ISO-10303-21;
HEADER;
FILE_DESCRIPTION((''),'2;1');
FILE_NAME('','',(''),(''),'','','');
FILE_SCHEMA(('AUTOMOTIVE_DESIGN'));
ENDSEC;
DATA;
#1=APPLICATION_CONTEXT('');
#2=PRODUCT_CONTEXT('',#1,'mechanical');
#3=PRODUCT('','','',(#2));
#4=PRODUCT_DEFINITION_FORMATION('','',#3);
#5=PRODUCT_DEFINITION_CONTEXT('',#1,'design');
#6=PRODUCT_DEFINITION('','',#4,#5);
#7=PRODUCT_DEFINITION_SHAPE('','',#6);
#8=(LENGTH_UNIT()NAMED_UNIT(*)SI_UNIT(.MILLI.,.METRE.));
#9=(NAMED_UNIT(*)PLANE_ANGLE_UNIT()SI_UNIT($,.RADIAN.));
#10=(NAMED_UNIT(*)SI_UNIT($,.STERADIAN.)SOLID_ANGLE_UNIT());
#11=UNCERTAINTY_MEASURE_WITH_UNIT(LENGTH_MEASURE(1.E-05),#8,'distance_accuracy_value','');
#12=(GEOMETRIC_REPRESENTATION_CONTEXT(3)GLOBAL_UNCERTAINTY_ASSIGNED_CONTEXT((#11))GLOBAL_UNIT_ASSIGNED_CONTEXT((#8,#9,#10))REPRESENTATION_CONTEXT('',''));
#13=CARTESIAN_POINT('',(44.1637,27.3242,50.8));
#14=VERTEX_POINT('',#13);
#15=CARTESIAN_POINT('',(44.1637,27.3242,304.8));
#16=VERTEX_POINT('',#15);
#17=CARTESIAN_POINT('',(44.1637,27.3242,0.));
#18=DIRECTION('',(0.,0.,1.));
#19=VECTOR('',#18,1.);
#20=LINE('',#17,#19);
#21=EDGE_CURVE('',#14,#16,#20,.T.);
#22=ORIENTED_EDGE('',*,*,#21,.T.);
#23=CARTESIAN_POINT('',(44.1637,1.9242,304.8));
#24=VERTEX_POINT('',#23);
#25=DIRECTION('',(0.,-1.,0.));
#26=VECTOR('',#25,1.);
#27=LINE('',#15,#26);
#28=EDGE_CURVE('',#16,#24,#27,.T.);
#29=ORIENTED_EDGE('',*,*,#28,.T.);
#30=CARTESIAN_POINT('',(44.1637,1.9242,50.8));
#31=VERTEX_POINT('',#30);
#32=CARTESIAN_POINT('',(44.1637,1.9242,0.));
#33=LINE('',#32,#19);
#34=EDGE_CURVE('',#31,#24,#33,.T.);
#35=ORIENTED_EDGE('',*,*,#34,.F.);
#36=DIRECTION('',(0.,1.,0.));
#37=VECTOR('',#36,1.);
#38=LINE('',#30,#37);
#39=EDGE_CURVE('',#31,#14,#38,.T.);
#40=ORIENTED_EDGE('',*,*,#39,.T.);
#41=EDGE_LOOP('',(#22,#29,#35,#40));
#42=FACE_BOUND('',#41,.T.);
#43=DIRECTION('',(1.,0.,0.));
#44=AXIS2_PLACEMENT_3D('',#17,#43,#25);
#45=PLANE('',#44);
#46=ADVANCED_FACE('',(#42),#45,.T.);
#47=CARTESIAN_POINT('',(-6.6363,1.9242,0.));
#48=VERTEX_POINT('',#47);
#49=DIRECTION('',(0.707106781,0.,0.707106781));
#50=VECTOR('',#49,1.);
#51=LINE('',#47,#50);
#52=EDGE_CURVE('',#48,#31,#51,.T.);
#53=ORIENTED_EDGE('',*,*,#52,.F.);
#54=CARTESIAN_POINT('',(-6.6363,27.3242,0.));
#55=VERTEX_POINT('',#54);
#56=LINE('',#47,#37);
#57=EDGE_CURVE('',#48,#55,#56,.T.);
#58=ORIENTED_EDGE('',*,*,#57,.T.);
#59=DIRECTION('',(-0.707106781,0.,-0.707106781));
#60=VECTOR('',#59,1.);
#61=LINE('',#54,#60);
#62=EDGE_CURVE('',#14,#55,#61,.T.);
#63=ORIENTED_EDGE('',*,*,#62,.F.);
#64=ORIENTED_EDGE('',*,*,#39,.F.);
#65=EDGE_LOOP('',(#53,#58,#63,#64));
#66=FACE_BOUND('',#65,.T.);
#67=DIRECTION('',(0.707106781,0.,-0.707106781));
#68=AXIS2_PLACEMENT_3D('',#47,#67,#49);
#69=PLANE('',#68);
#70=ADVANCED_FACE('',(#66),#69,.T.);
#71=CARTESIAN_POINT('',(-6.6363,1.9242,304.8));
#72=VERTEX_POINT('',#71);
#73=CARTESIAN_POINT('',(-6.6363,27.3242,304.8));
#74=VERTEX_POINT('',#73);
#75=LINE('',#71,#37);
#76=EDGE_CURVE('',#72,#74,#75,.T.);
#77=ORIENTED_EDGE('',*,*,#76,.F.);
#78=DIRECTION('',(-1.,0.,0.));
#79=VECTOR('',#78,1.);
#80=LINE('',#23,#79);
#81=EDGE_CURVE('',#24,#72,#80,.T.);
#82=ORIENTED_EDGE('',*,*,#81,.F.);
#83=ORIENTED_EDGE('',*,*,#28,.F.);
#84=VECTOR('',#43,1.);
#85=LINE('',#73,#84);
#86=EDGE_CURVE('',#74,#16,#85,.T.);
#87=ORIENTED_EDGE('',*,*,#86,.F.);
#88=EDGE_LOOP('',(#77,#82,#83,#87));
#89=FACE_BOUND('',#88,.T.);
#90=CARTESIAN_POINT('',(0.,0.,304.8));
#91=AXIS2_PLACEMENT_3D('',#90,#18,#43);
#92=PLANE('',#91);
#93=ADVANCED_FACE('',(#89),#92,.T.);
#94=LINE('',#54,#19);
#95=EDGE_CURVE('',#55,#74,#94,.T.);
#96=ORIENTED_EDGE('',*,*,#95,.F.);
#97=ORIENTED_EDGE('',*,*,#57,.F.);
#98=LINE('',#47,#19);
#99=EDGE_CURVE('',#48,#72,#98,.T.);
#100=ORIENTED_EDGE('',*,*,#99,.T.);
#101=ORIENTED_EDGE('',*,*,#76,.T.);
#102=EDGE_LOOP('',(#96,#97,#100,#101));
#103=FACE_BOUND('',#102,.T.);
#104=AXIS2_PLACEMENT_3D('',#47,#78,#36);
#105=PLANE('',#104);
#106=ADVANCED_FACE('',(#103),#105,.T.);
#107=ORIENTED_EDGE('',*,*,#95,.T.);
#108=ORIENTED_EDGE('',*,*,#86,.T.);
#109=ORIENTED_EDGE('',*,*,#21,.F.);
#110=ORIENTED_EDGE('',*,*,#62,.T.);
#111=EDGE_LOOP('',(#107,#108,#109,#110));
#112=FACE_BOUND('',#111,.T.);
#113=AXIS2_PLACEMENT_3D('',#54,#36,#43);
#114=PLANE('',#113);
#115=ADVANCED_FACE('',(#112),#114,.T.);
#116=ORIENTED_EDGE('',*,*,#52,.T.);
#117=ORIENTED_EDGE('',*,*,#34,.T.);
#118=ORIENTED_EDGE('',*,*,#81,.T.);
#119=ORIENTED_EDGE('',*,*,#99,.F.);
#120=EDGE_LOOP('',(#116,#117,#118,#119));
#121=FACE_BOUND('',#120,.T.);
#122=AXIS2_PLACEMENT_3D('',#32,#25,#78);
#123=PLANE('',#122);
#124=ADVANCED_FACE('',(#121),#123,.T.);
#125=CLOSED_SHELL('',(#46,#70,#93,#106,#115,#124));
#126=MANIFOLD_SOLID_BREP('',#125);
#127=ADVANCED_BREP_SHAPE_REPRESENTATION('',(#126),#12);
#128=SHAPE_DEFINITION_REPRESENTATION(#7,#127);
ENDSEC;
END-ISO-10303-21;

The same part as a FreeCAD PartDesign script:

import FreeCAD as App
import Part
import Sketcher

V = App.Vector
Q = App.Units.Quantity


def add_polygon(sketch, points):
    """Adds a closed chain of lines whose ends are joined by coincident constraints."""
    first, n = sketch.GeometryCount, len(points)
    for a, b in zip(points, points[1:] + points[:1]):
        sketch.addGeometry(Part.LineSegment(App.Vector(*a, 0), App.Vector(*b, 0)), False)
    for i in range(n):
        sketch.addConstraint(Sketcher.Constraint("Coincident", first + i, 2, first + (i + 1) % n, 1))

doc = App.newDocument("Part")
body = doc.addObject("PartDesign::Body", "Body")

# Sketch on XY plane
sketch1 = body.newObject("Sketcher::SketchObject", "Sketch")
sketch1.AttachmentSupport = (doc.getObject("XY_Plane"), [""])
sketch1.MapMode = "FlatFace"
add_polygon(sketch1, [(44, 27), (-7, 27), (-7, 2), (44, 2)])  # lines 0-3
sketch1.addConstraint([
    Sketcher.Constraint("Horizontal", 0),
    Sketcher.Constraint("Vertical", 1),
    Sketcher.Constraint("Horizontal", 2),
    Sketcher.Constraint("Vertical", 3),
    Sketcher.Constraint("DistanceX", 0, 2, 0, 1, Q("2 in")),
    Sketcher.Constraint("DistanceY", 1, 2, 1, 1, Q("1 in")),
    Sketcher.Constraint("DistanceX", 0, 2, -1, 1, Q("6.6363 mm")),
    Sketcher.Constraint("DistanceY", -1, 1, 0, 2, Q("27.3242 mm")),
])
pad1 = body.newObject("PartDesign::Pad", "Pad")
pad1.Profile = sketch1
pad1.Length = Q("12 in")

# Sketch on XZ plane
sketch2 = body.newObject("Sketcher::SketchObject", "Sketch001")
sketch2.AttachmentSupport = (doc.getObject("XZ_Plane"), [""])
sketch2.MapMode = "FlatFace"
sketch2.AttachmentOffset = App.Placement(V(0, 0, -1.9242), App.Rotation())
add_polygon(sketch2, [(44, 51), (-7, 0), (44, 0)])  # lines 0-2
sketch2.addConstraint([
    Sketcher.Constraint("Horizontal", 1),
    Sketcher.Constraint("Vertical", 2),
    Sketcher.Constraint("PointOnObject", 0, 2, -1),
    Sketcher.Constraint("Equal", 1, 2),
    Sketcher.Constraint("DistanceX", 1, 1, 1, 2, Q("2 in")),
    Sketcher.Constraint("DistanceX", 0, 2, -1, 1, Q("6.6363 mm")),
])
pocket1 = body.newObject("PartDesign::Pocket", "Pocket")
pocket1.Profile = sketch2
pocket1.Length = Q("12 in")

doc.recompute()
